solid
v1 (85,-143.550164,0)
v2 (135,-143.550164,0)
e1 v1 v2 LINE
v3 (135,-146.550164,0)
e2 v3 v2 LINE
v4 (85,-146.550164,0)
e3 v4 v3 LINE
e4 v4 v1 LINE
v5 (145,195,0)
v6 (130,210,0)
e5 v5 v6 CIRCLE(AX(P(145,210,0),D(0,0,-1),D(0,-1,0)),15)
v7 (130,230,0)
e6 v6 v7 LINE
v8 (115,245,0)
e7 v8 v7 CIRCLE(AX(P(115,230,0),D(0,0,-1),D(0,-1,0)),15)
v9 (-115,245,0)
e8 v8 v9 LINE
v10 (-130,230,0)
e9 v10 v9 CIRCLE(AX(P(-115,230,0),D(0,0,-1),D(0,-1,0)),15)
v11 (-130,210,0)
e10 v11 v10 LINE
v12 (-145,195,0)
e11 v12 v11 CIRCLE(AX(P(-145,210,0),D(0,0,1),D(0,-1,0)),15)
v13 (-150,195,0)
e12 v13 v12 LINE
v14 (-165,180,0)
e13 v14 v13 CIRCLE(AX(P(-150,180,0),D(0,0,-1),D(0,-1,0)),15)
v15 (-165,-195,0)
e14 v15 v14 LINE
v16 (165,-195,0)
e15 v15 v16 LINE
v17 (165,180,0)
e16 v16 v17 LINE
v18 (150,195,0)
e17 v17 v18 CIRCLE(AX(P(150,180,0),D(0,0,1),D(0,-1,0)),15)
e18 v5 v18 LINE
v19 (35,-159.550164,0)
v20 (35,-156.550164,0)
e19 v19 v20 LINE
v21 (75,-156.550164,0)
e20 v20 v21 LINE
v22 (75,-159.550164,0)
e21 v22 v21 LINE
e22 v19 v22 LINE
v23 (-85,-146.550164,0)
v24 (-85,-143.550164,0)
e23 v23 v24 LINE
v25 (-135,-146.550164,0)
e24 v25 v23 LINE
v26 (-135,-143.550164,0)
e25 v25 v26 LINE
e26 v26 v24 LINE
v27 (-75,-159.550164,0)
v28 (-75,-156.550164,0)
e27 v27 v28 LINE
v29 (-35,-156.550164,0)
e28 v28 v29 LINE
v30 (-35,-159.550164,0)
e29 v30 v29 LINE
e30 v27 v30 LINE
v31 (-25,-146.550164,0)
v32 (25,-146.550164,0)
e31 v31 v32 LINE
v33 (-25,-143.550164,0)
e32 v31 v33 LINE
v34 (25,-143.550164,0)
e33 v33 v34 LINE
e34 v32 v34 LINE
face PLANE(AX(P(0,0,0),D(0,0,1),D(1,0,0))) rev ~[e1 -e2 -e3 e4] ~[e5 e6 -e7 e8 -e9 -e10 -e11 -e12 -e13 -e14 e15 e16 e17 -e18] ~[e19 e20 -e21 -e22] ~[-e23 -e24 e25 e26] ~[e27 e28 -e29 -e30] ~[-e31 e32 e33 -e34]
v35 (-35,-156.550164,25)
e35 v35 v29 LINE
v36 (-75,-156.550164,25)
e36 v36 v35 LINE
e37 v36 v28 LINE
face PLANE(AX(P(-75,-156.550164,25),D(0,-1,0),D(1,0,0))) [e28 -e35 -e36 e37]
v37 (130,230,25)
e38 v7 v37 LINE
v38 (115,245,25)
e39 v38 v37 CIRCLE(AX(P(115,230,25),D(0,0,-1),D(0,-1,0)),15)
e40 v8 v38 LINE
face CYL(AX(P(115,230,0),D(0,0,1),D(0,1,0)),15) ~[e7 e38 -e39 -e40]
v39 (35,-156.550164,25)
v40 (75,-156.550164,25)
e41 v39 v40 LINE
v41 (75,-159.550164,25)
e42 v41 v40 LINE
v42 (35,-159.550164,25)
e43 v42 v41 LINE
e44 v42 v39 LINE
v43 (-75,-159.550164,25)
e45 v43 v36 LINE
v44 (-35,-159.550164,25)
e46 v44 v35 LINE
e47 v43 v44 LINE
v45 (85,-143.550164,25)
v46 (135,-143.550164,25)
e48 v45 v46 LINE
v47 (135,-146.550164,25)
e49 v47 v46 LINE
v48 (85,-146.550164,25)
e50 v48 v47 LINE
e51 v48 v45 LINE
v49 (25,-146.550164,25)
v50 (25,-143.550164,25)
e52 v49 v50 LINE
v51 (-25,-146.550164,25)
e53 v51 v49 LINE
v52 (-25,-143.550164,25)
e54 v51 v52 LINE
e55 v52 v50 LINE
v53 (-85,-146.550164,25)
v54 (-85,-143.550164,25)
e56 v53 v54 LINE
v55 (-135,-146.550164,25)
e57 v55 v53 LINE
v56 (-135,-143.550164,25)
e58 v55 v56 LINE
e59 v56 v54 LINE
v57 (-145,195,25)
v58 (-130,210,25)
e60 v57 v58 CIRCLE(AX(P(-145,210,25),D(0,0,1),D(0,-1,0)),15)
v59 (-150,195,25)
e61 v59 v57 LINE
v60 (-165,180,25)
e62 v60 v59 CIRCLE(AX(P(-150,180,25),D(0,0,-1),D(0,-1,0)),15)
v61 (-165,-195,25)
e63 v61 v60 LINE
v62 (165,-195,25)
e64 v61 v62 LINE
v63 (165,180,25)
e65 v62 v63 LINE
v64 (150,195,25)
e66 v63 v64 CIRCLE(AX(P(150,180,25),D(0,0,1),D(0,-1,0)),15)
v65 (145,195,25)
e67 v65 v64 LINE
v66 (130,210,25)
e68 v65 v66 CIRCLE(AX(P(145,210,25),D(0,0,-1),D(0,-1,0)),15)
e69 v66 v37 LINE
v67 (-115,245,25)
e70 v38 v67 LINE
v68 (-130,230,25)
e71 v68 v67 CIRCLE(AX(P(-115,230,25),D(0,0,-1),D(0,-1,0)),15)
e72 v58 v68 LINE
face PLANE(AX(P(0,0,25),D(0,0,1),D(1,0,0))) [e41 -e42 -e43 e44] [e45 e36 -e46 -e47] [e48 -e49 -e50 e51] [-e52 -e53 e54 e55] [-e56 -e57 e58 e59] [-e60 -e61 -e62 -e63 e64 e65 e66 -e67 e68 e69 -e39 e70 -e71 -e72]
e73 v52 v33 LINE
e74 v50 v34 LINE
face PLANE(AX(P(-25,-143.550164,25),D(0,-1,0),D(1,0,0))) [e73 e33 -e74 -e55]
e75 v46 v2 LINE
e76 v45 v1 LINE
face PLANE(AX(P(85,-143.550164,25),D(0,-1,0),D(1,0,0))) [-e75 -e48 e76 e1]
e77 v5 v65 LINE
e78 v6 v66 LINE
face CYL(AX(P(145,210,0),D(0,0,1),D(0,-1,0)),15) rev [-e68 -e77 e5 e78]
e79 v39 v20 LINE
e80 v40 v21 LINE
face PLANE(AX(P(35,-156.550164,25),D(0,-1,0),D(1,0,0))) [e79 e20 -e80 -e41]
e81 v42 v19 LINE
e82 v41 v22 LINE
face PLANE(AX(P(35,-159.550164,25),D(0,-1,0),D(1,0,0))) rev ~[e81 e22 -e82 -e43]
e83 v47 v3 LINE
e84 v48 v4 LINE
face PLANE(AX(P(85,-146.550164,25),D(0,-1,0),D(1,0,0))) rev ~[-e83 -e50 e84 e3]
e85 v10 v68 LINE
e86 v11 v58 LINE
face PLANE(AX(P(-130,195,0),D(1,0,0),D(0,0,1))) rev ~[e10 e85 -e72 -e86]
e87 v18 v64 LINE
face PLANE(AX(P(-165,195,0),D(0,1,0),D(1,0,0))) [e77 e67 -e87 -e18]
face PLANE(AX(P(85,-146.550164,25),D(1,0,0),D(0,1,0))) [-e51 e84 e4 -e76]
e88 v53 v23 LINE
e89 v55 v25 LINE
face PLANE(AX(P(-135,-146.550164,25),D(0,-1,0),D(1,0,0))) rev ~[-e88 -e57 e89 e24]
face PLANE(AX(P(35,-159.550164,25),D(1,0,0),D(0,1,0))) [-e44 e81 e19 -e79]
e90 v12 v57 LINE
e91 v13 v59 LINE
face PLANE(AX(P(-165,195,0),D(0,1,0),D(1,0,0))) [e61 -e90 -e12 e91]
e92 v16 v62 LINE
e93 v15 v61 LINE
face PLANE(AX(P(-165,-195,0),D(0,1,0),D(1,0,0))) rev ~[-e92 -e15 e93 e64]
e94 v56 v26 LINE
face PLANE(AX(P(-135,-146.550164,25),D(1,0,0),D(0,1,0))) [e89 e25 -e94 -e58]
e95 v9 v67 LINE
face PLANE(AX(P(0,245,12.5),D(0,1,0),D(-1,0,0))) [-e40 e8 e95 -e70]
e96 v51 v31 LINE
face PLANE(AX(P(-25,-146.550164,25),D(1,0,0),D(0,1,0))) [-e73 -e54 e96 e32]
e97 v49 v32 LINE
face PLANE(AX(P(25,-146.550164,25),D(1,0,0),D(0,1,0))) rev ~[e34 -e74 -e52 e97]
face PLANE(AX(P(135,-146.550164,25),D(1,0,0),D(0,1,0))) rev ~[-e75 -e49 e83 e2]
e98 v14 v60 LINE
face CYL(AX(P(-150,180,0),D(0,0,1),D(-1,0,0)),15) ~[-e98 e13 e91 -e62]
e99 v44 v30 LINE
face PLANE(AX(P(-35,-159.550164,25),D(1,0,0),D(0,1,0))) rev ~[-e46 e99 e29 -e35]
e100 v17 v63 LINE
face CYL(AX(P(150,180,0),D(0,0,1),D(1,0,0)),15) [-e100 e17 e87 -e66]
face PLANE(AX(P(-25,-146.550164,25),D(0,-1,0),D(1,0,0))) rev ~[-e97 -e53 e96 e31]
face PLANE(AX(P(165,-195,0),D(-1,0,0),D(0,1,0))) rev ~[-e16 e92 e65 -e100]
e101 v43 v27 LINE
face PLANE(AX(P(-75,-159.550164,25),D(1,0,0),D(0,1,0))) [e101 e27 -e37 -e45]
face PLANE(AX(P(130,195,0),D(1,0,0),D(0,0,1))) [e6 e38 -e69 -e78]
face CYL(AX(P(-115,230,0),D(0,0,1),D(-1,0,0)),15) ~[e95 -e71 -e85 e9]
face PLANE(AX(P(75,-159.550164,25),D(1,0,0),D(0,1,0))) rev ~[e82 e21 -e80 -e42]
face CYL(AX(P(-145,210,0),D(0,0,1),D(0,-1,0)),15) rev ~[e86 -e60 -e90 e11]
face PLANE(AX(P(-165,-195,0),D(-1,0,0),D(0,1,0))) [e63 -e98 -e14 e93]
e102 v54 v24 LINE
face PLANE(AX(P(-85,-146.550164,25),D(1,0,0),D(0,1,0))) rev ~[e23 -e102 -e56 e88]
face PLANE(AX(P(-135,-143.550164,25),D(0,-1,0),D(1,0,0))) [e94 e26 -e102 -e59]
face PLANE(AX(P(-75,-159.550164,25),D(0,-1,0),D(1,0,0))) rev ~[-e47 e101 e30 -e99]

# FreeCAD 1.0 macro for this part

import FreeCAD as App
import Part
import Sketcher

V = App.Vector


def edges_at(feature, points):
    """Names of the edges that pass closest to the given points."""
    edges = feature.Shape.Edges
    near = lambda p: min(range(len(edges)), key=lambda i: edges[i].distToShape(Part.Vertex(*p))[0])
    return sorted({f"Edge{near(p) + 1}" for p in points})


def add_polygon(sketch, points):
    """Adds a closed chain of lines whose ends are joined by coincident constraints."""
    first, n = sketch.GeometryCount, len(points)
    for a, b in zip(points, points[1:] + points[:1]):
        sketch.addGeometry(Part.LineSegment(App.Vector(*a, 0), App.Vector(*b, 0)), False)
    for i in range(n):
        sketch.addConstraint(Sketcher.Constraint("Coincident", first + i, 2, first + (i + 1) % n, 1))

doc = App.newDocument("Part")
params = doc.addObject("Spreadsheet::Sheet", "Params")
for row, (alias, value) in enumerate([
    ("sketch1_width", "330 mm"),
    ("sketch1_height", "390 mm"),
    ("pad1_length", "25 mm"),
    ("sketch2_width", "260 mm"),
    ("sketch2_height", "25 mm"),
    ("pad2_length", "50 mm"),
    ("fillet_radius", "15 mm"),
    ("sketch3_width", "50 mm"),
    ("sketch3_width2", "40 mm"),
    ("sketch3_height", "3 mm"),
    ("pocket1_length", "25 mm"),
], start=1):
    params.set(f"A{row}", alias)
    params.set(f"B{row}", "=" + value)
    params.setAlias(f"B{row}", alias)

body = doc.addObject("PartDesign::Body", "Body")

sketch1 = body.newObject("Sketcher::SketchObject", "Sketch")
sketch1.AttachmentSupport = (doc.getObject("XY_Plane"), [""])
sketch1.MapMode = "FlatFace"
add_polygon(sketch1, [(-165, 195), (-165, -195), (165, -195), (165, 195)])
sketch1.addConstraint([
    Sketcher.Constraint("Vertical", 0),
    Sketcher.Constraint("Horizontal", 1),
    Sketcher.Constraint("Vertical", 2),
    Sketcher.Constraint("Horizontal", 3),
    Sketcher.Constraint("Symmetric", 0, 2, 2, 2, -1, 1),
    Sketcher.Constraint("DistanceX", 1, 1, 1, 2, 330.0),
    Sketcher.Constraint("DistanceY", 0, 2, 0, 1, 390.0),
])
sketch1.setExpression("Constraints[9]", "Params.sketch1_width")
sketch1.setExpression("Constraints[10]", "Params.sketch1_height")
pad1 = body.newObject("PartDesign::Pad", "Pad")
pad1.Profile = sketch1
pad1.setExpression("Length", "Params.pad1_length")

sketch2 = body.newObject("Sketcher::SketchObject", "Sketch001")
sketch2.AttachmentSupport = (doc.getObject("XZ_Plane"), [""])
sketch2.MapMode = "FlatFace"
sketch2.AttachmentOffset = App.Placement(V(0, 0, -195), App.Rotation())
add_polygon(sketch2, [(130, 25), (130, 0), (-130, 0), (-130, 25)])
sketch2.addConstraint([
    Sketcher.Constraint("Vertical", 0),
    Sketcher.Constraint("Horizontal", 1),
    Sketcher.Constraint("Vertical", 2),
    Sketcher.Constraint("Horizontal", 3),
    Sketcher.Constraint("Symmetric", 0, 2, 1, 2, -1, 1),
    Sketcher.Constraint("DistanceX", 1, 2, 1, 1, 260.0),
    Sketcher.Constraint("DistanceY", 0, 2, 0, 1, 25.0),
])
sketch2.setExpression("Constraints[9]", "Params.sketch2_width")
sketch2.setExpression("Constraints[10]", "Params.sketch2_height")
pad2 = body.newObject("PartDesign::Pad", "Pad001")
pad2.Profile = sketch2
pad2.setExpression("Length", "Params.pad2_length")
pad2.Reversed = True
doc.recompute()

fillet = body.newObject("PartDesign::Fillet", "Fillet")
fillet.Base = (pad2, edges_at(pad2, [
    (-165, 195, 12.5),
    (-130, 245, 12.5),
    (130, 245, 12.5),
    (165, 195, 12.5),
    (-130, 195, 12.5),
    (130, 195, 12.5),
]))
fillet.setExpression("Radius", "Params.fillet_radius")

sketch3 = body.newObject("Sketcher::SketchObject", "Sketch002")
sketch3.AttachmentSupport = (doc.getObject("XY_Plane"), [""])
sketch3.MapMode = "FlatFace"
sketch3.AttachmentOffset = App.Placement(V(0, 0, 25), App.Rotation())
add_polygon(sketch3, [(-135, -143.6), (-135, -146.6), (-85, -146.6), (-85, -143.6)])
add_polygon(sketch3, [(-25, -143.6), (-25, -146.6), (25, -146.6), (25, -143.6)])
add_polygon(sketch3, [(85, -143.6), (85, -146.6), (135, -146.6), (135, -143.6)])
add_polygon(sketch3, [(-75, -156.6), (-75, -159.6), (-35, -159.6), (-35, -156.6)])
add_polygon(sketch3, [(35, -156.6), (35, -159.6), (75, -159.6), (75, -156.6)])
sketch3.addConstraint([
    Sketcher.Constraint("Vertical", 0),
    Sketcher.Constraint("Horizontal", 1),
    Sketcher.Constraint("Vertical", 2),
    Sketcher.Constraint("Horizontal", 3),
    Sketcher.Constraint("Vertical", 4),
    Sketcher.Constraint("Horizontal", 5),
    Sketcher.Constraint("Vertical", 6),
    Sketcher.Constraint("Horizontal", 7),
    Sketcher.Constraint("Vertical", 8),
    Sketcher.Constraint("Horizontal", 9),
    Sketcher.Constraint("Vertical", 10),
    Sketcher.Constraint("Horizontal", 11),
    Sketcher.Constraint("Vertical", 12),
    Sketcher.Constraint("Horizontal", 13),
    Sketcher.Constraint("Vertical", 14),
    Sketcher.Constraint("Horizontal", 15),
    Sketcher.Constraint("Vertical", 16),
    Sketcher.Constraint("Horizontal", 17),
    Sketcher.Constraint("Vertical", 18),
    Sketcher.Constraint("Horizontal", 19),
    Sketcher.Constraint("Symmetric", 1, 2, 8, 2, -2),
    Sketcher.Constraint("Symmetric", 3, 2, 10, 2, -2),
    Sketcher.Constraint("Symmetric", 13, 2, 16, 2, -2),
    Sketcher.Constraint("Symmetric", 15, 2, 18, 2, -2),
    Sketcher.Constraint("Horizontal", 1, 2, 4, 2),
    Sketcher.Constraint("Horizontal", 3, 2, 6, 2),
    Sketcher.Constraint("Equal", 3, 5),
    Sketcher.Constraint("Equal", 10, 12),
    Sketcher.Constraint("DistanceX", 1, 1, 1, 2, 50.0),
    Sketcher.Constraint("DistanceX", 13, 1, 13, 2, 40.0),
    Sketcher.Constraint("DistanceY", 0, 2, 0, 1, 3.0),
    Sketcher.Constraint("DistanceX", 0, 2, -1, 1, 135.0),
    Sketcher.Constraint("DistanceX", 4, 2, -1, 1, 25.0),
    Sketcher.Constraint("DistanceX", 12, 2, -1, 1, 75.0),
    Sketcher.Constraint("DistanceY", 12, 2, 1, 2, 13.0),
    Sketcher.Constraint("DistanceY", 0, 2, -1, 1, 146.550164),
])
sketch3.setExpression("Constraints[48]", "Params.sketch3_width")
sketch3.setExpression("Constraints[49]", "Params.sketch3_width2")
sketch3.setExpression("Constraints[50]", "Params.sketch3_height")
pocket1 = body.newObject("PartDesign::Pocket", "Pocket")
pocket1.Profile = sketch3
pocket1.setExpression("Length", "Params.pocket1_length")

doc.recompute()
